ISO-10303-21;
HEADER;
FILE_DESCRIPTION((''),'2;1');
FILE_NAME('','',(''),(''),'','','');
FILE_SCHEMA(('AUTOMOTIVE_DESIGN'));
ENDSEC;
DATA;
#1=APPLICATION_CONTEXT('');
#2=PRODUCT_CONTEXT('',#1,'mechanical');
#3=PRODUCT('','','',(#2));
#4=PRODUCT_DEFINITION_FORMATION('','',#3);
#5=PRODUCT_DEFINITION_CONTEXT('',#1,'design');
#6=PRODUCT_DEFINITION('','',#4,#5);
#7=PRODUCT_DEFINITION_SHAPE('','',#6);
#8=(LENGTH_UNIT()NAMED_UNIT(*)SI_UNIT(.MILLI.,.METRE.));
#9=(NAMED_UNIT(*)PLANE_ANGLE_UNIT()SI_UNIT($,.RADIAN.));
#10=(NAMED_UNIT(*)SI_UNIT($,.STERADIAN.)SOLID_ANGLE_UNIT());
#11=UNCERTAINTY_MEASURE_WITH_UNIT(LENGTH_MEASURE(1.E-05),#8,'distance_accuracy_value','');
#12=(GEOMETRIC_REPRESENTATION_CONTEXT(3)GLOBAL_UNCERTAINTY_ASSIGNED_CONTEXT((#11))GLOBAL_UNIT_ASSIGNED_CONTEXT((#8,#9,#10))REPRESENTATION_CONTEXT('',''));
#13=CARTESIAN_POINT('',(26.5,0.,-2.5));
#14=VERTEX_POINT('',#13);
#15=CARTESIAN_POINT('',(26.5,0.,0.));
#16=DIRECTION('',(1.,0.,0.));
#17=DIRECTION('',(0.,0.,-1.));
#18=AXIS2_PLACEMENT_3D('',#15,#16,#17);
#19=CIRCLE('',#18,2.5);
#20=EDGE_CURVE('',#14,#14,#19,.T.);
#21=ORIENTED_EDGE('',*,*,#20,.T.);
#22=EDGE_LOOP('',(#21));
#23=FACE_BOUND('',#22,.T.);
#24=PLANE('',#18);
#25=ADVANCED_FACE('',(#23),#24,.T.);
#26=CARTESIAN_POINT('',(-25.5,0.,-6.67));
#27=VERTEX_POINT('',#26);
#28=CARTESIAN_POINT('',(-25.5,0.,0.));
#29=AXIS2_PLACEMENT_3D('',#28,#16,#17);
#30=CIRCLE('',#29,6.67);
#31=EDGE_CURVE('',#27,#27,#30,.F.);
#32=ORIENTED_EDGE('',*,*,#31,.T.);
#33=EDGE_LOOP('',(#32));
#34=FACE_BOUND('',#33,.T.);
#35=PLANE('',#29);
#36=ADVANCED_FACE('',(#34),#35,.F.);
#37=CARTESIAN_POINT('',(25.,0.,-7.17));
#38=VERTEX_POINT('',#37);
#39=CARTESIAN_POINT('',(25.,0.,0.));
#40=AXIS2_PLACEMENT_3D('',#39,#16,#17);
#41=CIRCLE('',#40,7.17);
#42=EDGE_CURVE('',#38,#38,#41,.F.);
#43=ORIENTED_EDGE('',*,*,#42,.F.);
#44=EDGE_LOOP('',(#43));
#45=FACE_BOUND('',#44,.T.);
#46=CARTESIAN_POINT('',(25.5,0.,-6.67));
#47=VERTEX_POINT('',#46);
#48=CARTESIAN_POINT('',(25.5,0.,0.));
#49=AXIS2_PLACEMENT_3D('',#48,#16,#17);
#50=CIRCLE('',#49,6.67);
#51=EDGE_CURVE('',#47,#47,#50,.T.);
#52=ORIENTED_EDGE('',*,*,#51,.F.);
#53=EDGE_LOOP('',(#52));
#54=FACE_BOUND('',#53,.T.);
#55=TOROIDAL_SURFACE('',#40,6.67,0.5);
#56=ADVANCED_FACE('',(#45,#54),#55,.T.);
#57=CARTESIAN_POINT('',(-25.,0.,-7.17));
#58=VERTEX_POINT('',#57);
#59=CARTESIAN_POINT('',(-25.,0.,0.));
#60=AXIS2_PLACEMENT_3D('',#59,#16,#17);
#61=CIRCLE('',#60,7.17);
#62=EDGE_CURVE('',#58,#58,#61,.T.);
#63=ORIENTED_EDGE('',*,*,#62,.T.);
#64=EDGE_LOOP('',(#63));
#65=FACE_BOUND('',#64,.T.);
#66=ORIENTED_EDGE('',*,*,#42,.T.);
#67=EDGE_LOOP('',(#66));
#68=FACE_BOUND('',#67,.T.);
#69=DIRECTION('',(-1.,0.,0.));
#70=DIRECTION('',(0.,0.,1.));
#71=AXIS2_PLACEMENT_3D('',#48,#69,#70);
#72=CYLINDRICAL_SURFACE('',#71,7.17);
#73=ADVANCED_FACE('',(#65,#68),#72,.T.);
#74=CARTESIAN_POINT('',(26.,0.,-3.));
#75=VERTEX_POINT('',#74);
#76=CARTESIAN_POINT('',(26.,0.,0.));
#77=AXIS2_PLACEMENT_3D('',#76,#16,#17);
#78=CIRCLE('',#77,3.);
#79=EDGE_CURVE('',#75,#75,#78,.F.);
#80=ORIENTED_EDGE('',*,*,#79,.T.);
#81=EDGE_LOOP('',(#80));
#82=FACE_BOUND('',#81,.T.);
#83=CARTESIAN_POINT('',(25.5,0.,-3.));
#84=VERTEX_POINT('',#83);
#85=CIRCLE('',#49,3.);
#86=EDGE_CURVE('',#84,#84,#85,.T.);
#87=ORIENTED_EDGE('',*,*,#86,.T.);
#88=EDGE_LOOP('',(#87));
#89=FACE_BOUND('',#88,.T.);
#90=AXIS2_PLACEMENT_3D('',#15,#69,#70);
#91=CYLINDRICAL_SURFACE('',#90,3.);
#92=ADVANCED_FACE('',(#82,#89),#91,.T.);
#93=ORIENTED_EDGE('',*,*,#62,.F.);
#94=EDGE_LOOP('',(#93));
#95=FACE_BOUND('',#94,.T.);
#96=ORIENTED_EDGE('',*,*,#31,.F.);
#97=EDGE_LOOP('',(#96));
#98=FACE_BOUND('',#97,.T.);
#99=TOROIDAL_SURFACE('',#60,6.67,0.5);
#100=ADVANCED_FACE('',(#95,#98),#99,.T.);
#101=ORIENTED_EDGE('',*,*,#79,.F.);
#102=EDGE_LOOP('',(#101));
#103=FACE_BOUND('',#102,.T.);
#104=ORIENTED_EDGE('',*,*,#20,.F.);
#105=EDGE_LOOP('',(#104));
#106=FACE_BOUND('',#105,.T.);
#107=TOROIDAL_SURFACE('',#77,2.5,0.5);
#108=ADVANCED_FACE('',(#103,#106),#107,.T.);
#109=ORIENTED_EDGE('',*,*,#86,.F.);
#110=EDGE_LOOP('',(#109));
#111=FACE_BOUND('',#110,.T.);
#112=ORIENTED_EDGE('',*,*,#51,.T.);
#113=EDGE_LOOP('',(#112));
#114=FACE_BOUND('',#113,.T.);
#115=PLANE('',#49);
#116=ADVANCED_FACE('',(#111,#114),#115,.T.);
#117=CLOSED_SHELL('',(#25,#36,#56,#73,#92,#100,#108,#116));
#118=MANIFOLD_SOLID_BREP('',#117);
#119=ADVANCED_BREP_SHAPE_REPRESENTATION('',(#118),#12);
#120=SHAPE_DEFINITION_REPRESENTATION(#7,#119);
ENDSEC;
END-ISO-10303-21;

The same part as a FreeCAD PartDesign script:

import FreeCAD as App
import Part
import Sketcher
from FreeCAD import Vector


def edges_at(feature, points):
    """Names of the edges that pass closest to the given points."""
    edges = feature.Shape.Edges
    near = lambda p: min(range(len(edges)), key=lambda i: edges[i].distToShape(Part.Vertex(*p))[0])
    return sorted({f"Edge{near(p) + 1}" for p in points})

doc = App.newDocument("Part")
params = doc.addObject("Spreadsheet::Sheet", "Params")
for row, (alias, value) in enumerate([
    ("sketch1_diameter", "14.34 mm"),
    ("pad1_length", "51 mm"),
    ("sketch2_diameter", "6 mm"),
    ("pad2_length", "1 mm"),
    ("fillet_radius", "0.5 mm"),
], start=1):
    params.set(f"A{row}", alias)
    params.set(f"B{row}", "=" + value)
    params.setAlias(f"B{row}", alias)

body = doc.addObject("PartDesign::Body", "Body")

# Sketch on YZ plane
sketch1 = body.newObject("Sketcher::SketchObject", "Sketch")
sketch1.AttachmentSupport = (doc.getObject("YZ_Plane"), [""])
sketch1.MapMode = "FlatFace"
sketch1.addGeometry(Part.Circle(Vector(0, 0, 0), Vector(0, 0, 1), 7), False)
sketch1.addConstraint([
    Sketcher.Constraint("Coincident", 0, 3, -1, 1),
    Sketcher.Constraint("Diameter", 0, 14.34),
])
sketch1.setExpression("Constraints[1]", "Params.sketch1_diameter")
pad1 = body.newObject("PartDesign::Pad", "Pad")
pad1.Profile = sketch1
pad1.setExpression("Length", "Params.pad1_length")
pad1.Midplane = True

# Sketch on YZ plane
sketch2 = body.newObject("Sketcher::SketchObject", "Sketch001")
sketch2.AttachmentSupport = (doc.getObject("YZ_Plane"), [""])
sketch2.MapMode = "FlatFace"
sketch2.AttachmentOffset = App.Placement(Vector(0, 0, 25.5), App.Rotation())
sketch2.addGeometry(Part.Circle(Vector(0, 0, 0), Vector(0, 0, 1), 3), False)
sketch2.addConstraint([
    Sketcher.Constraint("Coincident", 0, 3, -1, 1),
    Sketcher.Constraint("Diameter", 0, 6.0),
])
sketch2.setExpression("Constraints[1]", "Params.sketch2_diameter")
pad2 = body.newObject("PartDesign::Pad", "Pad001")
pad2.Profile = sketch2
pad2.setExpression("Length", "Params.pad2_length")
doc.recompute()

fillet = body.newObject("PartDesign::Fillet", "Fillet")
fillet.Base = (pad2, edges_at(pad2, [(-25.5, 0, 7.17), (25.5, 0, 7.17), (26.5, 0, 3)]))
fillet.setExpression("Radius", "Params.fillet_radius")

doc.recompute()
